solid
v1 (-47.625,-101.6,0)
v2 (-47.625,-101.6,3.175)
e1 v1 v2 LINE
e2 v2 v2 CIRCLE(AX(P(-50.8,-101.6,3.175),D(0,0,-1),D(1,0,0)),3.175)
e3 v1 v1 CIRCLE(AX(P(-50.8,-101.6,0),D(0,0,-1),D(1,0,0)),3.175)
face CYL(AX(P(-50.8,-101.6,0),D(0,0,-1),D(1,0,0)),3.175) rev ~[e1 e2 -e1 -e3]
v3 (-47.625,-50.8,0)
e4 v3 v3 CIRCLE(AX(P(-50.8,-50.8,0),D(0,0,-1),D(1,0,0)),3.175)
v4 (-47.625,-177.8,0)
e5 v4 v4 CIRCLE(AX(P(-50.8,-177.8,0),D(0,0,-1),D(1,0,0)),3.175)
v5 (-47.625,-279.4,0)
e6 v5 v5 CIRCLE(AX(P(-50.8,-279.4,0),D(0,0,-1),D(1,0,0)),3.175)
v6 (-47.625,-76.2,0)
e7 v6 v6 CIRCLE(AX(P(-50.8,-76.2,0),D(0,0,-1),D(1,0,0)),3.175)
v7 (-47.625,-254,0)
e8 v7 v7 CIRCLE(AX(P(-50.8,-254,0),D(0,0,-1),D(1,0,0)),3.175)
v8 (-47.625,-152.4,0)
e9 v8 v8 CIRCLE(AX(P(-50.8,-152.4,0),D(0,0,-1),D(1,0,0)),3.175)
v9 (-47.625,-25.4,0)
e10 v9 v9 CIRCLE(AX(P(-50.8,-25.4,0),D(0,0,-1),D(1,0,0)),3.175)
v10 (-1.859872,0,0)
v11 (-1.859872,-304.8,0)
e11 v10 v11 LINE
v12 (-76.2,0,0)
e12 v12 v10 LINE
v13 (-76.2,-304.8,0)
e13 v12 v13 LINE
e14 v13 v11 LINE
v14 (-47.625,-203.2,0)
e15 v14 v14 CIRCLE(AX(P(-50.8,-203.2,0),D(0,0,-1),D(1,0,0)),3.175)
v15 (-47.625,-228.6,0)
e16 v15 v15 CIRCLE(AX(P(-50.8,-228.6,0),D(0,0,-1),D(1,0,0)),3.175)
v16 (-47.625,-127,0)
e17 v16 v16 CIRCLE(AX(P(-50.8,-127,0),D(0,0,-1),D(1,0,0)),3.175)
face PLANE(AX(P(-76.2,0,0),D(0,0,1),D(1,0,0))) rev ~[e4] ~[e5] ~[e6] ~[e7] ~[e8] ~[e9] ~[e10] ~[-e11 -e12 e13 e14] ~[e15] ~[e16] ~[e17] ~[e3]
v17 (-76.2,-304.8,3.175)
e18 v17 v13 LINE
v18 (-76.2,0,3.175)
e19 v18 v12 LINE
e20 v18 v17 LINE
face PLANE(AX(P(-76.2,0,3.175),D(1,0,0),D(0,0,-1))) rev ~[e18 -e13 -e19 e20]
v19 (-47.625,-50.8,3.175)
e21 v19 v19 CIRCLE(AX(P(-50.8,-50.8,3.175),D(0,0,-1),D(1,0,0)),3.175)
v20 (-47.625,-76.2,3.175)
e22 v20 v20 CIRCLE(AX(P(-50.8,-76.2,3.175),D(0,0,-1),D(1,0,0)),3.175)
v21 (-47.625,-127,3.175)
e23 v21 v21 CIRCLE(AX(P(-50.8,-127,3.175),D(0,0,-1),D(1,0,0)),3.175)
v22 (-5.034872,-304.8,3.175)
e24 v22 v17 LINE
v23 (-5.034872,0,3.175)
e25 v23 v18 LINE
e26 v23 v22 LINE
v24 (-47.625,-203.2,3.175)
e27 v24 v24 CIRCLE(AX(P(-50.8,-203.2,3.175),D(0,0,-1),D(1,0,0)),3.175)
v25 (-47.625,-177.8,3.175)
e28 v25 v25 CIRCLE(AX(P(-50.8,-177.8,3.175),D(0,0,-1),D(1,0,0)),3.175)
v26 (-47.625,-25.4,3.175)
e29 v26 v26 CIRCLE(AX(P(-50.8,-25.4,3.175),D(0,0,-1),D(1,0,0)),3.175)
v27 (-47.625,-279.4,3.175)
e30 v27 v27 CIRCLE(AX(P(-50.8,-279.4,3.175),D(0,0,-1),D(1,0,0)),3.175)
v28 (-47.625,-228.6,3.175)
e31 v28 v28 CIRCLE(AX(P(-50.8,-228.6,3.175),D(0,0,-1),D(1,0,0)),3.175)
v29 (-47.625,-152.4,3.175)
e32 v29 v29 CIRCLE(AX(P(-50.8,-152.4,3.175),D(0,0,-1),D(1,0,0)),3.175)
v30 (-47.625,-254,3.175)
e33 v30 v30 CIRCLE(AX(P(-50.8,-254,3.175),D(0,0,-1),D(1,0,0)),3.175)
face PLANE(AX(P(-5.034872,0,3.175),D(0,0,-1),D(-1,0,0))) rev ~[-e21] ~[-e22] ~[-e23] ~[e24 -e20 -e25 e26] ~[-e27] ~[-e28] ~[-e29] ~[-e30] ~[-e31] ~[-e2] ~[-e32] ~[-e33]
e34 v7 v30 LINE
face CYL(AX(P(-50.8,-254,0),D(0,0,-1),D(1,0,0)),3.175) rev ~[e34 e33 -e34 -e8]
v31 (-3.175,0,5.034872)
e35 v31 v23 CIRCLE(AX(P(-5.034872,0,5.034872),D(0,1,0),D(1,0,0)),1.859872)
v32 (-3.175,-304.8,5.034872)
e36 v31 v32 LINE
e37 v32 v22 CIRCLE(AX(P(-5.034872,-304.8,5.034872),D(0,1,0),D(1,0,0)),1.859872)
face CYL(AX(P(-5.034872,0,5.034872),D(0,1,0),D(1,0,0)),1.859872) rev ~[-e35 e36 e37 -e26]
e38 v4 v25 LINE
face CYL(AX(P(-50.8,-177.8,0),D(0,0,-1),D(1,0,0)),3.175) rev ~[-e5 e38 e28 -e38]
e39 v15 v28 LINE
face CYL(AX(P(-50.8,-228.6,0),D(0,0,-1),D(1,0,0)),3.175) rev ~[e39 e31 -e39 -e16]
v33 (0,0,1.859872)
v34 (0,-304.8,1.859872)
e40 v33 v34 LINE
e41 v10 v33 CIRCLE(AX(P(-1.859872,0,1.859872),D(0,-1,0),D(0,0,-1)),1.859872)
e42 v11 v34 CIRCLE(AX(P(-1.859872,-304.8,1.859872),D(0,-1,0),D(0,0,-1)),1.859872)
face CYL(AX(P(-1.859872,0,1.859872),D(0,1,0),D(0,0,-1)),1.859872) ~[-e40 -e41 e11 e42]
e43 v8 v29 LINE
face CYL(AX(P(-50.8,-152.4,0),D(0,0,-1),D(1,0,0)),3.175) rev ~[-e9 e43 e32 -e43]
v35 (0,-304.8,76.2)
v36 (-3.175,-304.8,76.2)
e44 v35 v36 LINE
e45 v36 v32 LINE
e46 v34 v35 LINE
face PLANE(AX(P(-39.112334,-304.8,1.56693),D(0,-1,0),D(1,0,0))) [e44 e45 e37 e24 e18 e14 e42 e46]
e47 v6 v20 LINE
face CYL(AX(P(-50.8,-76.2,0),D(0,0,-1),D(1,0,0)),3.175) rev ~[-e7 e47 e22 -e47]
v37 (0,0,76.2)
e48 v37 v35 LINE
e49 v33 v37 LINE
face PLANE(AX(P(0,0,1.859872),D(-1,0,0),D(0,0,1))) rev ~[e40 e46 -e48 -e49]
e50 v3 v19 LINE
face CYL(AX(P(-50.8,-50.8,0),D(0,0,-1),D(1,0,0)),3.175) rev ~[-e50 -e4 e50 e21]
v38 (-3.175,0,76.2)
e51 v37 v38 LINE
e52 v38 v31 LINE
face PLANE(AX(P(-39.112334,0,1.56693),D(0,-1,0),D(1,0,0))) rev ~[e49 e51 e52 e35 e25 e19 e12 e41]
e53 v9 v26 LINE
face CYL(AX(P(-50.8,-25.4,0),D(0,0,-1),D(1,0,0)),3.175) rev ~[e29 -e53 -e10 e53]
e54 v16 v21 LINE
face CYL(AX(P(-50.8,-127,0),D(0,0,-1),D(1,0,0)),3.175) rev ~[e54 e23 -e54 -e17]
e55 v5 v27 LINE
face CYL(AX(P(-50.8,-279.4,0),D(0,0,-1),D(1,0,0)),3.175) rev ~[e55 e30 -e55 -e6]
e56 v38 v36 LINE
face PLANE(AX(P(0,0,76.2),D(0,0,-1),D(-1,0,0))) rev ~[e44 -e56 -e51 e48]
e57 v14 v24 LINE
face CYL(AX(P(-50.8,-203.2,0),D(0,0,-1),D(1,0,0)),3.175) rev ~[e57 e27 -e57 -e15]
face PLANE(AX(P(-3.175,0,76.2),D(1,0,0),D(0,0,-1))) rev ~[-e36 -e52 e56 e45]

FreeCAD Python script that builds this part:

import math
import FreeCAD as App
import Part
import Sketcher
Q = App.Units.Quantity

doc = App.newDocument("Part")
params = doc.addObject("Spreadsheet::Sheet", "Params")
for row, (alias, value) in enumerate([
    ("sketch1_width", "0.125 in"),
    ("pad1_length", "12 in"),
    ("sketch2_diameter", "0.25 in"),
], start=1):
    params.set(f"A{row}", alias)
    params.set(f"B{row}", "=" + value)
    params.setAlias(f"B{row}", alias)

body = doc.addObject("PartDesign::Body", "Body")

sketch1 = body.newObject("Sketcher::SketchObject", "Sketch")
sketch1.AttachmentSupport = (doc.getObject("XZ_Plane"), [""])
sketch1.MapMode = "FlatFace"
sketch1.addGeometry(Part.LineSegment(App.Vector(-76.2, 0, 0), App.Vector(-1.9, 0, 0)), False)
sketch1.addGeometry(Part.ArcOfCircle(Part.Circle(App.Vector(-1.9, 1.9, 0), App.Vector(0, 0, 1), 1.9), math.radians(-90), math.radians(0)), False)
sketch1.addGeometry(Part.LineSegment(App.Vector(0, 1.9, 0), App.Vector(0, 76.2, 0)), False)
sketch1.addGeometry(Part.LineSegment(App.Vector(0, 76.2, 0), App.Vector(-3.2, 76.2, 0)), False)
sketch1.addGeometry(Part.LineSegment(App.Vector(-3.2, 76.2, 0), App.Vector(-3.2, 5, 0)), False)
sketch1.addGeometry(Part.ArcOfCircle(Part.Circle(App.Vector(-5, 5, 0), App.Vector(0, 0, 1), 1.9), math.radians(-90), math.radians(0)), False)
sketch1.addGeometry(Part.LineSegment(App.Vector(-5, 3.2, 0), App.Vector(-76.2, 3.2, 0)), False)
sketch1.addGeometry(Part.LineSegment(App.Vector(-76.2, 3.2, 0), App.Vector(-76.2, 0, 0)), False)
sketch1.addConstraint(Sketcher.Constraint("Tangent", 0, 2, 1, 1))
sketch1.addConstraint(Sketcher.Constraint("Tangent", 1, 2, 2, 1))
sketch1.addConstraint(Sketcher.Constraint("Coincident", 2, 2, 3, 1))
sketch1.addConstraint(Sketcher.Constraint("Coincident", 3, 2, 4, 1))
sketch1.addConstraint(Sketcher.Constraint("Tangent", 4, 2, 5, 2))
sketch1.addConstraint(Sketcher.Constraint("Tangent", 5, 1, 6, 1))
sketch1.addConstraint(Sketcher.Constraint("Coincident", 6, 2, 7, 1))
sketch1.addConstraint(Sketcher.Constraint("Coincident", 7, 2, 0, 1))
sketch1.addConstraint(Sketcher.Constraint("Horizontal", 0))
sketch1.addConstraint(Sketcher.Constraint("Vertical", 2))
sketch1.addConstraint(Sketcher.Constraint("Horizontal", 3))
sketch1.addConstraint(Sketcher.Constraint("Vertical", 4))
sketch1.addConstraint(Sketcher.Constraint("Horizontal", 6))
sketch1.addConstraint(Sketcher.Constraint("Vertical", 7))
sketch1.addConstraint(Sketcher.Constraint("Equal", 1, 5))
sketch1.addConstraint(Sketcher.Constraint("PointOnObject", 0, 2, -1))
sketch1.addConstraint(Sketcher.Constraint("PointOnObject", 1, 2, -2))
sketch1.addConstraint(Sketcher.Constraint("Equal", 0, 2))
sketch1.addConstraint(Sketcher.Constraint("Equal", 6, 4))
sketch1.addConstraint(Sketcher.Constraint("DistanceY", -1, 1, 2, 2, Q("3 in")))
sketch1.addConstraint(Sketcher.Constraint("DistanceX", 3, 2, 3, 1, Q("0.125 in")))
sketch1.addConstraint(Sketcher.Constraint("Radius", 1, 1.859872))
sketch1.setExpression("Constraints[20]", "Params.sketch1_width")
pad1 = body.newObject("PartDesign::Pad", "Pad")
pad1.Profile = sketch1
pad1.setExpression("Length", "Params.pad1_length")

sketch2 = body.newObject("Sketcher::SketchObject", "Sketch001")
sketch2.AttachmentSupport = (doc.getObject("XY_Plane"), [""])
sketch2.MapMode = "FlatFace"
sketch2.addGeometry(Part.Circle(App.Vector(-50.8, -279.4, 0), App.Vector(0, 0, 1), 3.2), False)
sketch2.addGeometry(Part.Circle(App.Vector(-50.8, -254, 0), App.Vector(0, 0, 1), 3.2), False)
sketch2.addGeometry(Part.Circle(App.Vector(-50.8, -228.6, 0), App.Vector(0, 0, 1), 3.2), False)
sketch2.addGeometry(Part.Circle(App.Vector(-50.8, -203.2, 0), App.Vector(0, 0, 1), 3.2), False)
sketch2.addGeometry(Part.Circle(App.Vector(-50.8, -177.8, 0), App.Vector(0, 0, 1), 3.2), False)
sketch2.addGeometry(Part.Circle(App.Vector(-50.8, -152.4, 0), App.Vector(0, 0, 1), 3.2), False)
sketch2.addGeometry(Part.Circle(App.Vector(-50.8, -127, 0), App.Vector(0, 0, 1), 3.2), False)
sketch2.addGeometry(Part.Circle(App.Vector(-50.8, -101.6, 0), App.Vector(0, 0, 1), 3.2), False)
sketch2.addGeometry(Part.Circle(App.Vector(-50.8, -76.2, 0), App.Vector(0, 0, 1), 3.2), False)
sketch2.addGeometry(Part.Circle(App.Vector(-50.8, -50.8, 0), App.Vector(0, 0, 1), 3.2), False)
sketch2.addGeometry(Part.Circle(App.Vector(-50.8, -25.4, 0), App.Vector(0, 0, 1), 3.2), False)
sketch2.addConstraint(Sketcher.Constraint("Equal", 0, 1))
sketch2.addConstraint(Sketcher.Constraint("Equal", 1, 2))
sketch2.addConstraint(Sketcher.Constraint("Equal", 2, 3))
sketch2.addConstraint(Sketcher.Constraint("Equal", 3, 4))
sketch2.addConstraint(Sketcher.Constraint("Equal", 4, 5))
sketch2.addConstraint(Sketcher.Constraint("Equal", 5, 6))
sketch2.addConstraint(Sketcher.Constraint("Equal", 6, 7))
sketch2.addConstraint(Sketcher.Constraint("Equal", 7, 8))
sketch2.addConstraint(Sketcher.Constraint("Equal", 8, 9))
sketch2.addConstraint(Sketcher.Constraint("Equal", 9, 10))
sketch2.addConstraint(Sketcher.Constraint("Vertical", 0, 3, 1, 3))
sketch2.addConstraint(Sketcher.Constraint("Vertical", 1, 3, 2, 3))
sketch2.addConstraint(Sketcher.Constraint("Vertical", 2, 3, 3, 3))
sketch2.addConstraint(Sketcher.Constraint("Vertical", 3, 3, 4, 3))
sketch2.addConstraint(Sketcher.Constraint("Vertical", 4, 3, 5, 3))
sketch2.addConstraint(Sketcher.Constraint("Vertical", 5, 3, 6, 3))
sketch2.addConstraint(Sketcher.Constraint("Vertical", 6, 3, 7, 3))
sketch2.addConstraint(Sketcher.Constraint("Vertical", 7, 3, 8, 3))
sketch2.addConstraint(Sketcher.Constraint("Vertical", 8, 3, 9, 3))
sketch2.addConstraint(Sketcher.Constraint("Vertical", 9, 3, 10, 3))
sketch2.addConstraint(Sketcher.Constraint("Diameter", 0, Q("0.25 in")))
sketch2.addConstraint(Sketcher.Constraint("DistanceX", 0, 3, -1, 1, Q("2 in")))
sketch2.addConstraint(Sketcher.Constraint("DistanceY", 0, 3, -1, 1, Q("11 in")))
sketch2.addConstraint(Sketcher.Constraint("DistanceY", 1, 3, -1, 1, Q("10 in")))
sketch2.addConstraint(Sketcher.Constraint("DistanceY", 2, 3, -1, 1, Q("9 in")))
sketch2.addConstraint(Sketcher.Constraint("DistanceY", 3, 3, -1, 1, Q("8 in")))
sketch2.addConstraint(Sketcher.Constraint("DistanceY", 4, 3, -1, 1, Q("7 in")))
sketch2.addConstraint(Sketcher.Constraint("DistanceY", 5, 3, -1, 1, Q("6 in")))
sketch2.addConstraint(Sketcher.Constraint("DistanceY", 6, 3, -1, 1, Q("5 in")))
sketch2.addConstraint(Sketcher.Constraint("DistanceY", 7, 3, -1, 1, Q("4 in")))
sketch2.addConstraint(Sketcher.Constraint("DistanceY", 8, 3, -1, 1, Q("3 in")))
sketch2.addConstraint(Sketcher.Constraint("DistanceY", 9, 3, -1, 1, Q("2 in")))
sketch2.addConstraint(Sketcher.Constraint("DistanceY", 10, 3, -1, 1, Q("1 in")))
sketch2.setExpression("Constraints[20]", "Params.sketch2_diameter")
pocket1 = body.newObject("PartDesign::Pocket", "Pocket")
pocket1.Profile = sketch2
pocket1.Type = "ThroughAll"
pocket1.Reversed = True

doc.recompute()
